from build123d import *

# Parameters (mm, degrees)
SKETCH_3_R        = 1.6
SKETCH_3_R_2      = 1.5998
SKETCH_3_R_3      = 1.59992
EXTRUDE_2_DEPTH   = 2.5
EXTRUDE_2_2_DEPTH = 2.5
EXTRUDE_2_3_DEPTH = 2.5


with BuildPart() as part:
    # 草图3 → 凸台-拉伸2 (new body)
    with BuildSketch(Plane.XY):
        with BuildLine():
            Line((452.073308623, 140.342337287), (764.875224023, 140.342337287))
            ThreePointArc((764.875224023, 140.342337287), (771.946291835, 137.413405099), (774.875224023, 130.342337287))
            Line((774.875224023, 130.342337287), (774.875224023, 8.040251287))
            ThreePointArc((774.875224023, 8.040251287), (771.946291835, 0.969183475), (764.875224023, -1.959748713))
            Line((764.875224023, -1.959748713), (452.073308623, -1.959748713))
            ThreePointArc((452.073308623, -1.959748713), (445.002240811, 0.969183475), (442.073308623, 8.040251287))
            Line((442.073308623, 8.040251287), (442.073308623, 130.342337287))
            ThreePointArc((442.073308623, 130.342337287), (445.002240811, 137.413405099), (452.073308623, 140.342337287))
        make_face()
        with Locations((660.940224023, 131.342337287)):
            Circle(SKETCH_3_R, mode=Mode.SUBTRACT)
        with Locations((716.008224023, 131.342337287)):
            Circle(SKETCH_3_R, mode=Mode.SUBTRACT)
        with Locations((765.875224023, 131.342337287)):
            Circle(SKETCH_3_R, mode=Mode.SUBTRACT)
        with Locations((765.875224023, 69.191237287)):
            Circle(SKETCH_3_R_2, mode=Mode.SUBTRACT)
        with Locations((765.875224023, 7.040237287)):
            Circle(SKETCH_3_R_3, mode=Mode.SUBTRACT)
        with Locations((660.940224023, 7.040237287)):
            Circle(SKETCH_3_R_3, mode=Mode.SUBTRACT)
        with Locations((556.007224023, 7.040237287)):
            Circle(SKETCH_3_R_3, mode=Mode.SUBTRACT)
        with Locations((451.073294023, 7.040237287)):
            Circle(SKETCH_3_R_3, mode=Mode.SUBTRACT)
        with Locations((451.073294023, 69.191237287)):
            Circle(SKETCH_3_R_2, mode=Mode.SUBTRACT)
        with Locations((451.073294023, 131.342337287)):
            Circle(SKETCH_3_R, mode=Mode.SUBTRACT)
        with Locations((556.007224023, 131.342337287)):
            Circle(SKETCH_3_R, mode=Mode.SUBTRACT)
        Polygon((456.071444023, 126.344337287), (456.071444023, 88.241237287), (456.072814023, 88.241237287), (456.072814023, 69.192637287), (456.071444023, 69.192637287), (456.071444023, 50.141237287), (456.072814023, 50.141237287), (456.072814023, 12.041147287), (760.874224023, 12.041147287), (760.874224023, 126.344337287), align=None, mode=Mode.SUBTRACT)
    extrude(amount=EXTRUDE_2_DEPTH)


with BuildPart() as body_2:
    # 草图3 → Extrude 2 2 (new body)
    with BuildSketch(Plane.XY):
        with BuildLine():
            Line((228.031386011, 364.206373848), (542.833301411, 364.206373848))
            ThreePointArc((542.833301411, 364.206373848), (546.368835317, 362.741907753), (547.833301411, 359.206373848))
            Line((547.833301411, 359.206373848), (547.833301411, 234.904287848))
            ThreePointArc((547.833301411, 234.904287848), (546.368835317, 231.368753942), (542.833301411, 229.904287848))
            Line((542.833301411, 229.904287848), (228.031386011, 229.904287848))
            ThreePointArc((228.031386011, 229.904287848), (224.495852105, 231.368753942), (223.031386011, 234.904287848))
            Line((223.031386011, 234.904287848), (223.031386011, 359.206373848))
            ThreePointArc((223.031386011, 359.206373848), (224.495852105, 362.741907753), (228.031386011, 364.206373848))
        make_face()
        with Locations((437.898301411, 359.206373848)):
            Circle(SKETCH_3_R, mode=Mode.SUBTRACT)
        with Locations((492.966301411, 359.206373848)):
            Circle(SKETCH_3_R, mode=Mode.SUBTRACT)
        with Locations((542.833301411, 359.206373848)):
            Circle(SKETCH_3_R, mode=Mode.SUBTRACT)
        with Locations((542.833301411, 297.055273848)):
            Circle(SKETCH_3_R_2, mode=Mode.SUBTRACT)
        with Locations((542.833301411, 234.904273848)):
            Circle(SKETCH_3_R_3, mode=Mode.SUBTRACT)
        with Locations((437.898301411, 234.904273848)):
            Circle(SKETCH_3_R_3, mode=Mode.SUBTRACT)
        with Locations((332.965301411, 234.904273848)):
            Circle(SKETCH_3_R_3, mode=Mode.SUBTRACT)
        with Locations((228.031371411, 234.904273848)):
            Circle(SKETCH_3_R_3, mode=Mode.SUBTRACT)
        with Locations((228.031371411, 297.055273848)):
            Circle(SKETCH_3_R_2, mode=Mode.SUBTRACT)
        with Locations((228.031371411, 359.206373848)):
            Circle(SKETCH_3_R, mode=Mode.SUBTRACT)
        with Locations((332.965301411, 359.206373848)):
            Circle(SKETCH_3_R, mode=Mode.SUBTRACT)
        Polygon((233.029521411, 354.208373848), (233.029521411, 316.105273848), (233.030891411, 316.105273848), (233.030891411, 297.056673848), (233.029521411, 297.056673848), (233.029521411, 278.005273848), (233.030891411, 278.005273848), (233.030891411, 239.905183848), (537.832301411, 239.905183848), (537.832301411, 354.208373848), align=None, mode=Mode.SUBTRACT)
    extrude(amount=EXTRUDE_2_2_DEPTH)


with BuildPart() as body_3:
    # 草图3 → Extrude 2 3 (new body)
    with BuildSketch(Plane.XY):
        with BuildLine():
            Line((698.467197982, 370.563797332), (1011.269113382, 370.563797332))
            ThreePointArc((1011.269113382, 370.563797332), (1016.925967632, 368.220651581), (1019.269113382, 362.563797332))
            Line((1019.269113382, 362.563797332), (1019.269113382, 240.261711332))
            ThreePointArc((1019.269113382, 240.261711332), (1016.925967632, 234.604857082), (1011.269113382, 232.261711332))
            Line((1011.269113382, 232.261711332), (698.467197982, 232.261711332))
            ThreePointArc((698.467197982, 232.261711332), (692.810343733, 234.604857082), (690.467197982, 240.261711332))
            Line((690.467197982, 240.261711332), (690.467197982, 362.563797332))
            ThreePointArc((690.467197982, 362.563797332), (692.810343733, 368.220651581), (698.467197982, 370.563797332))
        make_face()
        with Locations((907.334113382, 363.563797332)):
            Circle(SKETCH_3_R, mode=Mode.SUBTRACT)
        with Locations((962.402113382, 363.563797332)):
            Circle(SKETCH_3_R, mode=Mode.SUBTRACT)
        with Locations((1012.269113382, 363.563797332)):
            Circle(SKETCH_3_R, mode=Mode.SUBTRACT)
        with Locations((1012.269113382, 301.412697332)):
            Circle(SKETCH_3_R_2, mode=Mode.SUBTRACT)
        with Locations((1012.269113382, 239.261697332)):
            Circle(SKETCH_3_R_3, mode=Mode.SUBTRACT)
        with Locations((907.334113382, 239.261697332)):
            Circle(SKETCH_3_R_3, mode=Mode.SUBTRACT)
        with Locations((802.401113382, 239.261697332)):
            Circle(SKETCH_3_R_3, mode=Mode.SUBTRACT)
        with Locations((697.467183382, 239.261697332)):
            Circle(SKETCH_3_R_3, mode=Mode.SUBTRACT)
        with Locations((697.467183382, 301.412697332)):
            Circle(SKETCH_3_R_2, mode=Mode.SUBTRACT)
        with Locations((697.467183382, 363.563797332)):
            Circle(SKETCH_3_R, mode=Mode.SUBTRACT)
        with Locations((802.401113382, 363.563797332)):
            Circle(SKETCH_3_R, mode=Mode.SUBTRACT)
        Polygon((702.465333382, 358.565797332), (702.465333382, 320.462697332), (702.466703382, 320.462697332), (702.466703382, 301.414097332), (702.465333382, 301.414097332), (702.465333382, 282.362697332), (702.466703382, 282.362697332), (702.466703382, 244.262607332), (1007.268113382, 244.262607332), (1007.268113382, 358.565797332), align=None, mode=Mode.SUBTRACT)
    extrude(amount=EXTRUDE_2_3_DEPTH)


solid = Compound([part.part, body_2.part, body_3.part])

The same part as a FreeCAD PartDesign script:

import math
import FreeCAD as App
import Part
import Sketcher
Q = App.Units.Quantity

doc = App.newDocument("Part")
body = doc.addObject("PartDesign::Body", "Body")

sketch1 = body.newObject("Sketcher::SketchObject", "Sketch")
sketch1.AttachmentSupport = (doc.getObject("XY_Plane"), [""])
sketch1.MapMode = "FlatFace"
sketch1.addGeometry(Part.LineSegment(App.Vector(764.875224, 140.342337, 0), App.Vector(452.073309, 140.342337, 0)), False)
sketch1.addGeometry(Part.ArcOfCircle(Part.Circle(App.Vector(452.073309, 130.342337, 0), App.Vector(0, 0, 1), 10), math.radians(90), math.radians(180)), False)
sketch1.addGeometry(Part.LineSegment(App.Vector(442.073309, 130.342337, 0), App.Vector(442.073309, 8.040251, 0)), False)
sketch1.addGeometry(Part.ArcOfCircle(Part.Circle(App.Vector(452.073309, 8.040251, 0), App.Vector(0, 0, 1), 10), math.radians(180), math.radians(270)), False)
sketch1.addGeometry(Part.LineSegment(App.Vector(452.073309, -1.959749, 0), App.Vector(764.875224, -1.959749, 0)), False)
sketch1.addGeometry(Part.ArcOfCircle(Part.Circle(App.Vector(764.875224, 8.040251, 0), App.Vector(0, 0, 1), 10), math.radians(-90), math.radians(0)), False)
sketch1.addGeometry(Part.LineSegment(App.Vector(774.875224, 8.040251, 0), App.Vector(774.875224, 130.342337, 0)), False)
sketch1.addGeometry(Part.ArcOfCircle(Part.Circle(App.Vector(764.875224, 130.342337, 0), App.Vector(0, 0, 1), 10), math.radians(0), math.radians(90)), False)
sketch1.addGeometry(Part.Circle(App.Vector(765.875224, 7.040237, 0), App.Vector(0, 0, 1), 1.59992), False)
sketch1.addGeometry(Part.Circle(App.Vector(660.940224, 7.040237, 0), App.Vector(0, 0, 1), 1.59992), False)
sketch1.addGeometry(Part.Circle(App.Vector(765.875224, 69.191237, 0), App.Vector(0, 0, 1), 1.5998), False)
sketch1.addGeometry(Part.Circle(App.Vector(556.007224, 7.040237, 0), App.Vector(0, 0, 1), 1.59992), False)
sketch1.addGeometry(Part.Circle(App.Vector(451.073294, 7.040237, 0), App.Vector(0, 0, 1), 1.59992), False)
sketch1.addGeometry(Part.Circle(App.Vector(451.073294, 69.191237, 0), App.Vector(0, 0, 1), 1.5998), False)
sketch1.addGeometry(Part.Circle(App.Vector(765.875224, 131.342337, 0), App.Vector(0, 0, 1), 1.6), False)
sketch1.addGeometry(Part.Circle(App.Vector(716.008224, 131.342337, 0), App.Vector(0, 0, 1), 1.6), False)
sketch1.addGeometry(Part.Circle(App.Vector(660.940224, 131.342337, 0), App.Vector(0, 0, 1), 1.6), False)
sketch1.addGeometry(Part.LineSegment(App.Vector(456.071444, 126.344337, 0), App.Vector(760.874224, 126.344337, 0)), False)
sketch1.addGeometry(Part.LineSegment(App.Vector(760.874224, 126.344337, 0), App.Vector(760.874224, 12.041147, 0)), False)
sketch1.addGeometry(Part.LineSegment(App.Vector(760.874224, 12.041147, 0), App.Vector(456.072814, 12.041147, 0)), False)
sketch1.addGeometry(Part.LineSegment(App.Vector(456.072814, 12.041147, 0), App.Vector(456.072814, 50.141237, 0)), False)
sketch1.addGeometry(Part.LineSegment(App.Vector(456.072814, 50.141237, 0), App.Vector(456.071444, 50.141237, 0)), False)
sketch1.addGeometry(Part.LineSegment(App.Vector(456.071444, 50.141237, 0), App.Vector(456.071444, 69.192637, 0)), False)
sketch1.addGeometry(Part.LineSegment(App.Vector(456.071444, 69.192637, 0), App.Vector(456.072814, 69.192637, 0)), False)
sketch1.addGeometry(Part.LineSegment(App.Vector(456.072814, 69.192637, 0), App.Vector(456.072814, 88.241237, 0)), False)
sketch1.addGeometry(Part.LineSegment(App.Vector(456.072814, 88.241237, 0), App.Vector(456.071444, 88.241237, 0)), False)
sketch1.addGeometry(Part.LineSegment(App.Vector(456.071444, 88.241237, 0), App.Vector(456.071444, 126.344337, 0)), False)
sketch1.addGeometry(Part.Circle(App.Vector(556.007224, 131.342337, 0), App.Vector(0, 0, 1), 1.6), False)
sketch1.addGeometry(Part.Circle(App.Vector(451.073294, 131.342337, 0), App.Vector(0, 0, 1), 1.6), False)
sketch1.addConstraint(Sketcher.Constraint("Tangent", 0, 2, 1, 1))
sketch1.addConstraint(Sketcher.Constraint("Tangent", 1, 2, 2, 1))
sketch1.addConstraint(Sketcher.Constraint("Tangent", 2, 2, 3, 1))
sketch1.addConstraint(Sketcher.Constraint("Tangent", 3, 2, 4, 1))
sketch1.addConstraint(Sketcher.Constraint("Tangent", 4, 2, 5, 1))
sketch1.addConstraint(Sketcher.Constraint("Tangent", 5, 2, 6, 1))
sketch1.addConstraint(Sketcher.Constraint("Tangent", 6, 2, 7, 1))
sketch1.addConstraint(Sketcher.Constraint("Tangent", 7, 2, 0, 1))
sketch1.addConstraint(Sketcher.Constraint("Coincident", 17, 2, 18, 1))
sketch1.addConstraint(Sketcher.Constraint("Coincident", 18, 2, 19, 1))
sketch1.addConstraint(Sketcher.Constraint("Coincident", 19, 2, 20, 1))
sketch1.addConstraint(Sketcher.Constraint("Coincident", 20, 2, 21, 1))
sketch1.addConstraint(Sketcher.Constraint("Coincident", 21, 2, 22, 1))
sketch1.addConstraint(Sketcher.Constraint("Coincident", 22, 2, 23, 1))
sketch1.addConstraint(Sketcher.Constraint("Coincident", 23, 2, 24, 1))
sketch1.addConstraint(Sketcher.Constraint("Coincident", 24, 2, 25, 1))
sketch1.addConstraint(Sketcher.Constraint("Coincident", 25, 2, 26, 1))
sketch1.addConstraint(Sketcher.Constraint("Coincident", 26, 2, 17, 1))
sketch1.addConstraint(Sketcher.Constraint("Horizontal", 0))
sketch1.addConstraint(Sketcher.Constraint("Vertical", 2))
sketch1.addConstraint(Sketcher.Constraint("Horizontal", 4))
sketch1.addConstraint(Sketcher.Constraint("Vertical", 6))
sketch1.addConstraint(Sketcher.Constraint("Horizontal", 17))
sketch1.addConstraint(Sketcher.Constraint("Vertical", 18))
sketch1.addConstraint(Sketcher.Constraint("Horizontal", 19))
sketch1.addConstraint(Sketcher.Constraint("Vertical", 20))
sketch1.addConstraint(Sketcher.Constraint("Horizontal", 21))
sketch1.addConstraint(Sketcher.Constraint("Vertical", 22))
sketch1.addConstraint(Sketcher.Constraint("Horizontal", 23))
sketch1.addConstraint(Sketcher.Constraint("Vertical", 24))
sketch1.addConstraint(Sketcher.Constraint("Horizontal", 25))
sketch1.addConstraint(Sketcher.Constraint("Vertical", 26))
sketch1.addConstraint(Sketcher.Constraint("Equal", 1, 3))
sketch1.addConstraint(Sketcher.Constraint("Equal", 3, 5))
sketch1.addConstraint(Sketcher.Constraint("Equal", 5, 7))
sketch1.addConstraint(Sketcher.Constraint("Equal", 8, 9))
sketch1.addConstraint(Sketcher.Constraint("Equal", 9, 11))
sketch1.addConstraint(Sketcher.Constraint("Equal", 11, 12))
sketch1.addConstraint(Sketcher.Constraint("Equal", 10, 13))
sketch1.addConstraint(Sketcher.Constraint("Equal", 14, 15))
sketch1.addConstraint(Sketcher.Constraint("Equal", 15, 16))
sketch1.addConstraint(Sketcher.Constraint("Equal", 16, 27))
sketch1.addConstraint(Sketcher.Constraint("Equal", 27, 28))
sketch1.addConstraint(Sketcher.Constraint("Horizontal", 8, 3, 9, 3))
sketch1.addConstraint(Sketcher.Constraint("Horizontal", 9, 3, 11, 3))
sketch1.addConstraint(Sketcher.Constraint("Horizontal", 11, 3, 12, 3))
sketch1.addConstraint(Sketcher.Constraint("Horizontal", 10, 3, 13, 3))
sketch1.addConstraint(Sketcher.Constraint("Horizontal", 14, 3, 15, 3))
sketch1.addConstraint(Sketcher.Constraint("Horizontal", 15, 3, 16, 3))
sketch1.addConstraint(Sketcher.Constraint("Horizontal", 16, 3, 27, 3))
sketch1.addConstraint(Sketcher.Constraint("Horizontal", 27, 3, 28, 3))
sketch1.addConstraint(Sketcher.Constraint("Vertical", 8, 3, 10, 3))
sketch1.addConstraint(Sketcher.Constraint("Vertical", 12, 3, 13, 3))
sketch1.addConstraint(Sketcher.Constraint("Vertical", 10, 3, 14, 3))
sketch1.addConstraint(Sketcher.Constraint("Vertical", 9, 3, 16, 3))
sketch1.addConstraint(Sketcher.Constraint("Vertical", 11, 3, 27, 3))
sketch1.addConstraint(Sketcher.Constraint("Vertical", 13, 3, 28, 3))
sketch1.addConstraint(Sketcher.Constraint("Vertical", 20, 2, 23, 2))
sketch1.addConstraint(Sketcher.Constraint("Vertical", 22, 2, 25, 2))
sketch1.addConstraint(Sketcher.Constraint("Radius", 1, Q("10 mm")))
sketch1.addConstraint(Sketcher.Constraint("Diameter", 14, Q("3.2 mm")))
sketch1.addConstraint(Sketcher.Constraint("DistanceX", 5, 3, 8, 3, Q("1 mm")))
sketch1.addConstraint(Sketcher.Constraint("DistanceY", 7, 3, 14, 3, Q("1 mm")))
sketch1.addConstraint(Sketcher.Constraint("Diameter", 10, Q("3.1996 mm")))
sketch1.addConstraint(Sketcher.Constraint("DistanceY", 20, 2, 24, 2, Q("38.1 mm")))
sketch1.addConstraint(Sketcher.Constraint("Diameter", 8, Q("3.19984 mm")))
sketch1.addConstraint(Sketcher.Constraint("DistanceY", 20, 2, 13, 3, Q("19.05 mm")))
sketch1.addConstraint(Sketcher.Constraint("DistanceY", 22, 1, 22, 2, Q("19.0514 mm")))
sketch1.addConstraint(Sketcher.Constraint("DistanceY", 26, 1, 26, 2, Q("38.1031 mm")))
sketch1.addConstraint(Sketcher.Constraint("DistanceX", 9, 3, 5, 3, Q("103.935 mm")))
sketch1.addConstraint(Sketcher.Constraint("DistanceY", 8, 3, 10, 3, Q("62.151 mm")))
sketch1.addConstraint(Sketcher.Constraint("DistanceX", 11, 3, 9, 3, Q("104.933 mm")))
sketch1.addConstraint(Sketcher.Constraint("DistanceX", 15, 3, 7, 3, Q("48.867 mm")))
sketch1.addConstraint(Sketcher.Constraint("DistanceX", 17, 2, 7, 3, Q("4.001 mm")))
sketch1.addConstraint(Sketcher.Constraint("DistanceY", 17, 2, 7, 3, Q("3.998 mm")))
sketch1.addConstraint(Sketcher.Constraint("DistanceX", 17, 1, 17, 2, Q("304.80278 mm")))
sketch1.addConstraint(Sketcher.Constraint("DistanceX", 19, 2, 19, 1, Q("304.80141 mm")))
sketch1.addConstraint(Sketcher.Constraint("DistanceY", 18, 2, 18, 1, Q("114.30319 mm")))
sketch1.addConstraint(Sketcher.Constraint("DistanceX", 0, 2, 0, 1, Q("312.801915 mm")))
sketch1.addConstraint(Sketcher.Constraint("DistanceY", 2, 2, 2, 1, Q("122.302086 mm")))
sketch1.addConstraint(Sketcher.Constraint("DistanceX", -1, 1, 1, 3, Q("452.073309 mm")))
sketch1.addConstraint(Sketcher.Constraint("DistanceY", -1, 1, 3, 3, Q("8.040251 mm")))
sketch1.addConstraint(Sketcher.Constraint("DistanceX", 12, 3, 11, 3, Q("104.93393 mm")))
pad1 = body.newObject("PartDesign::Pad", "Pad")
pad1.Profile = sketch1
pad1.Length = 2.5
body2 = doc.addObject("PartDesign::Body", "Body001")

sketch2 = body2.newObject("Sketcher::SketchObject", "Sketch001")
sketch2.AttachmentSupport = (doc.getObject("XY_Plane001"), [""])
sketch2.MapMode = "FlatFace"
sketch2.addGeometry(Part.LineSegment(App.Vector(542.833301, 364.206374, 0), App.Vector(228.031386, 364.206374, 0)), False)
sketch2.addGeometry(Part.ArcOfCircle(Part.Circle(App.Vector(228.031386, 359.206374, 0), App.Vector(0, 0, 1), 5), math.radians(90), math.radians(180)), False)
sketch2.addGeometry(Part.LineSegment(App.Vector(223.031386, 359.206374, 0), App.Vector(223.031386, 234.904288, 0)), False)
sketch2.addGeometry(Part.ArcOfCircle(Part.Circle(App.Vector(228.031386, 234.904288, 0), App.Vector(0, 0, 1), 5), math.radians(180), math.radians(270)), False)
sketch2.addGeometry(Part.LineSegment(App.Vector(228.031386, 229.904288, 0), App.Vector(542.833301, 229.904288, 0)), False)
sketch2.addGeometry(Part.ArcOfCircle(Part.Circle(App.Vector(542.833301, 234.904288, 0), App.Vector(0, 0, 1), 5), math.radians(-90), math.radians(0)), False)
sketch2.addGeometry(Part.LineSegment(App.Vector(547.833301, 234.904288, 0), App.Vector(547.833301, 359.206374, 0)), False)
sketch2.addGeometry(Part.ArcOfCircle(Part.Circle(App.Vector(542.833301, 359.206374, 0), App.Vector(0, 0, 1), 5), math.radians(0), math.radians(90)), False)
sketch2.addGeometry(Part.Circle(App.Vector(542.833301, 234.904274, 0), App.Vector(0, 0, 1), 1.59992), False)
sketch2.addGeometry(Part.Circle(App.Vector(437.898301, 234.904274, 0), App.Vector(0, 0, 1), 1.59992), False)
sketch2.addGeometry(Part.Circle(App.Vector(542.833301, 297.055274, 0), App.Vector(0, 0, 1), 1.5998), False)
sketch2.addGeometry(Part.Circle(App.Vector(332.965301, 234.904274, 0), App.Vector(0, 0, 1), 1.59992), False)
sketch2.addGeometry(Part.Circle(App.Vector(228.031371, 234.904274, 0), App.Vector(0, 0, 1), 1.59992), False)
sketch2.addGeometry(Part.Circle(App.Vector(228.031371, 297.055274, 0), App.Vector(0, 0, 1), 1.5998), False)
sketch2.addGeometry(Part.Circle(App.Vector(542.833301, 359.206374, 0), App.Vector(0, 0, 1), 1.6), False)
sketch2.addGeometry(Part.Circle(App.Vector(492.966301, 359.206374, 0), App.Vector(0, 0, 1), 1.6), False)
sketch2.addGeometry(Part.Circle(App.Vector(437.898301, 359.206374, 0), App.Vector(0, 0, 1), 1.6), False)
sketch2.addGeometry(Part.LineSegment(App.Vector(233.029521, 354.208374, 0), App.Vector(537.832301, 354.208374, 0)), False)
sketch2.addGeometry(Part.LineSegment(App.Vector(537.832301, 354.208374, 0), App.Vector(537.832301, 239.905184, 0)), False)
sketch2.addGeometry(Part.LineSegment(App.Vector(537.832301, 239.905184, 0), App.Vector(233.030891, 239.905184, 0)), False)
sketch2.addGeometry(Part.LineSegment(App.Vector(233.030891, 239.905184, 0), App.Vector(233.030891, 278.005274, 0)), False)
sketch2.addGeometry(Part.LineSegment(App.Vector(233.030891, 278.005274, 0), App.Vector(233.029521, 278.005274, 0)), False)
sketch2.addGeometry(Part.LineSegment(App.Vector(233.029521, 278.005274, 0), App.Vector(233.029521, 297.056674, 0)), False)
sketch2.addGeometry(Part.LineSegment(App.Vector(233.029521, 297.056674, 0), App.Vector(233.030891, 297.056674, 0)), False)
sketch2.addGeometry(Part.LineSegment(App.Vector(233.030891, 297.056674, 0), App.Vector(233.030891, 316.105274, 0)), False)
sketch2.addGeometry(Part.LineSegment(App.Vector(233.030891, 316.105274, 0), App.Vector(233.029521, 316.105274, 0)), False)
sketch2.addGeometry(Part.LineSegment(App.Vector(233.029521, 316.105274, 0), App.Vector(233.029521, 354.208374, 0)), False)
sketch2.addGeometry(Part.Circle(App.Vector(332.965301, 359.206374, 0), App.Vector(0, 0, 1), 1.6), False)
sketch2.addGeometry(Part.Circle(App.Vector(228.031371, 359.206374, 0), App.Vector(0, 0, 1), 1.6), False)
sketch2.addConstraint(Sketcher.Constraint("Tangent", 0, 2, 1, 1))
sketch2.addConstraint(Sketcher.Constraint("Tangent", 1, 2, 2, 1))
sketch2.addConstraint(Sketcher.Constraint("Tangent", 2, 2, 3, 1))
sketch2.addConstraint(Sketcher.Constraint("Tangent", 3, 2, 4, 1))
sketch2.addConstraint(Sketcher.Constraint("Tangent", 4, 2, 5, 1))
sketch2.addConstraint(Sketcher.Constraint("Tangent", 5, 2, 6, 1))
sketch2.addConstraint(Sketcher.Constraint("Tangent", 6, 2, 7, 1))
sketch2.addConstraint(Sketcher.Constraint("Tangent", 7, 2, 0, 1))
sketch2.addConstraint(Sketcher.Constraint("Coincident", 17, 2, 18, 1))
sketch2.addConstraint(Sketcher.Constraint("Coincident", 18, 2, 19, 1))
sketch2.addConstraint(Sketcher.Constraint("Coincident", 19, 2, 20, 1))
sketch2.addConstraint(Sketcher.Constraint("Coincident", 20, 2, 21, 1))
sketch2.addConstraint(Sketcher.Constraint("Coincident", 21, 2, 22, 1))
sketch2.addConstraint(Sketcher.Constraint("Coincident", 22, 2, 23, 1))
sketch2.addConstraint(Sketcher.Constraint("Coincident", 23, 2, 24, 1))
sketch2.addConstraint(Sketcher.Constraint("Coincident", 24, 2, 25, 1))
sketch2.addConstraint(Sketcher.Constraint("Coincident", 25, 2, 26, 1))
sketch2.addConstraint(Sketcher.Constraint("Coincident", 26, 2, 17, 1))
sketch2.addConstraint(Sketcher.Constraint("Horizontal", 0))
sketch2.addConstraint(Sketcher.Constraint("Vertical", 2))
sketch2.addConstraint(Sketcher.Constraint("Horizontal", 4))
sketch2.addConstraint(Sketcher.Constraint("Vertical", 6))
sketch2.addConstraint(Sketcher.Constraint("Horizontal", 17))
sketch2.addConstraint(Sketcher.Constraint("Vertical", 18))
sketch2.addConstraint(Sketcher.Constraint("Horizontal", 19))
sketch2.addConstraint(Sketcher.Constraint("Vertical", 20))
sketch2.addConstraint(Sketcher.Constraint("Horizontal", 21))
sketch2.addConstraint(Sketcher.Constraint("Vertical", 22))
sketch2.addConstraint(Sketcher.Constraint("Horizontal", 23))
sketch2.addConstraint(Sketcher.Constraint("Vertical", 24))
sketch2.addConstraint(Sketcher.Constraint("Horizontal", 25))
sketch2.addConstraint(Sketcher.Constraint("Vertical", 26))
sketch2.addConstraint(Sketcher.Constraint("Coincident", 14, 3, 7, 3))
sketch2.addConstraint(Sketcher.Constraint("Equal", 1, 3))
sketch2.addConstraint(Sketcher.Constraint("Equal", 3, 5))
sketch2.addConstraint(Sketcher.Constraint("Equal", 5, 7))
sketch2.addConstraint(Sketcher.Constraint("Equal", 8, 9))
sketch2.addConstraint(Sketcher.Constraint("Equal", 9, 11))
sketch2.addConstraint(Sketcher.Constraint("Equal", 11, 12))
sketch2.addConstraint(Sketcher.Constraint("Equal", 10, 13))
sketch2.addConstraint(Sketcher.Constraint("Equal", 14, 15))
sketch2.addConstraint(Sketcher.Constraint("Equal", 15, 16))
sketch2.addConstraint(Sketcher.Constraint("Equal", 16, 27))
sketch2.addConstraint(Sketcher.Constraint("Equal", 27, 28))
sketch2.addConstraint(Sketcher.Constraint("Horizontal", 8, 3, 9, 3))
sketch2.addConstraint(Sketcher.Constraint("Horizontal", 9, 3, 11, 3))
sketch2.addConstraint(Sketcher.Constraint("Horizontal", 11, 3, 12, 3))
sketch2.addConstraint(Sketcher.Constraint("Horizontal", 10, 3, 13, 3))
sketch2.addConstraint(Sketcher.Constraint("Horizontal", 14, 3, 15, 3))
sketch2.addConstraint(Sketcher.Constraint("Horizontal", 15, 3, 16, 3))
sketch2.addConstraint(Sketcher.Constraint("Horizontal", 16, 3, 27, 3))
sketch2.addConstraint(Sketcher.Constraint("Horizontal", 27, 3, 28, 3))
sketch2.addConstraint(Sketcher.Constraint("Vertical", 7, 3, 8, 3))
sketch2.addConstraint(Sketcher.Constraint("Vertical", 8, 3, 10, 3))
sketch2.addConstraint(Sketcher.Constraint("Vertical", 12, 3, 13, 3))
sketch2.addConstraint(Sketcher.Constraint("Vertical", 9, 3, 16, 3))
sketch2.addConstraint(Sketcher.Constraint("Vertical", 11, 3, 27, 3))
sketch2.addConstraint(Sketcher.Constraint("Vertical", 13, 3, 28, 3))
sketch2.addConstraint(Sketcher.Constraint("Vertical", 20, 2, 23, 2))
sketch2.addConstraint(Sketcher.Constraint("Vertical", 22, 2, 25, 2))
sketch2.addConstraint(Sketcher.Constraint("Radius", 1, Q("5 mm")))
sketch2.addConstraint(Sketcher.Constraint("Diameter", 14, Q("3.2 mm")))
sketch2.addConstraint(Sketcher.Constraint("Diameter", 10, Q("3.1996 mm")))
sketch2.addConstraint(Sketcher.Constraint("DistanceY", 20, 2, 24, 2, Q("38.1 mm")))
sketch2.addConstraint(Sketcher.Constraint("Diameter", 8, Q("3.19984 mm")))
sketch2.addConstraint(Sketcher.Constraint("DistanceY", 20, 2, 13, 3, Q("19.05 mm")))
sketch2.addConstraint(Sketcher.Constraint("DistanceY", 22, 1, 22, 2, Q("19.0514 mm")))
sketch2.addConstraint(Sketcher.Constraint("DistanceY", 26, 1, 26, 2, Q("38.1031 mm")))
sketch2.addConstraint(Sketcher.Constraint("DistanceX", 9, 3, 8, 3, Q("104.935 mm")))
sketch2.addConstraint(Sketcher.Constraint("DistanceY", 8, 3, 10, 3, Q("62.151 mm")))
sketch2.addConstraint(Sketcher.Constraint("DistanceX", 11, 3, 9, 3, Q("104.933 mm")))
sketch2.addConstraint(Sketcher.Constraint("DistanceX", 15, 3, 7, 3, Q("49.867 mm")))
sketch2.addConstraint(Sketcher.Constraint("DistanceX", 17, 2, 7, 3, Q("5.001 mm")))
sketch2.addConstraint(Sketcher.Constraint("DistanceY", 17, 2, 7, 3, Q("4.998 mm")))
sketch2.addConstraint(Sketcher.Constraint("DistanceX", 17, 1, 17, 2, Q("304.80278 mm")))
sketch2.addConstraint(Sketcher.Constraint("DistanceX", 19, 2, 19, 1, Q("304.80141 mm")))
sketch2.addConstraint(Sketcher.Constraint("DistanceY", 18, 2, 18, 1, Q("114.30319 mm")))
sketch2.addConstraint(Sketcher.Constraint("DistanceX", -1, 1, 5, 3, Q("542.833301 mm")))
sketch2.addConstraint(Sketcher.Constraint("DistanceX", 0, 2, 0, 1, Q("314.801915 mm")))
sketch2.addConstraint(Sketcher.Constraint("DistanceY", 2, 2, 2, 1, Q("124.302086 mm")))
sketch2.addConstraint(Sketcher.Constraint("DistanceX", -1, 1, 12, 3, Q("228.031371 mm")))
sketch2.addConstraint(Sketcher.Constraint("DistanceY", -1, 1, 1, 3, Q("359.206374 mm")))
pad2 = body2.newObject("PartDesign::Pad", "Pad001")
pad2.Profile = sketch2
pad2.Length = 2.5
body3 = doc.addObject("PartDesign::Body", "Body002")

sketch3 = body3.newObject("Sketcher::SketchObject", "Sketch002")
sketch3.AttachmentSupport = (doc.getObject("XY_Plane002"), [""])
sketch3.MapMode = "FlatFace"
sketch3.addGeometry(Part.LineSegment(App.Vector(1011.269113, 370.563797, 0), App.Vector(698.467198, 370.563797, 0)), False)
sketch3.addGeometry(Part.ArcOfCircle(Part.Circle(App.Vector(698.467198, 362.563797, 0), App.Vector(0, 0, 1), 8), math.radians(90), math.radians(180)), False)
sketch3.addGeometry(Part.LineSegment(App.Vector(690.467198, 362.563797, 0), App.Vector(690.467198, 240.261711, 0)), False)
sketch3.addGeometry(Part.ArcOfCircle(Part.Circle(App.Vector(698.467198, 240.261711, 0), App.Vector(0, 0, 1), 8), math.radians(180), math.radians(270)), False)
sketch3.addGeometry(Part.LineSegment(App.Vector(698.467198, 232.261711, 0), App.Vector(1011.269113, 232.261711, 0)), False)
sketch3.addGeometry(Part.ArcOfCircle(Part.Circle(App.Vector(1011.269113, 240.261711, 0), App.Vector(0, 0, 1), 8), math.radians(-90), math.radians(0)), False)
sketch3.addGeometry(Part.LineSegment(App.Vector(1019.269113, 240.261711, 0), App.Vector(1019.269113, 362.563797, 0)), False)
sketch3.addGeometry(Part.ArcOfCircle(Part.Circle(App.Vector(1011.269113, 362.563797, 0), App.Vector(0, 0, 1), 8), math.radians(0), math.radians(90)), False)
sketch3.addGeometry(Part.Circle(App.Vector(1012.269113, 239.261697, 0), App.Vector(0, 0, 1), 1.59992), False)
sketch3.addGeometry(Part.Circle(App.Vector(907.334113, 239.261697, 0), App.Vector(0, 0, 1), 1.59992), False)
sketch3.addGeometry(Part.Circle(App.Vector(1012.269113, 301.412697, 0), App.Vector(0, 0, 1), 1.5998), False)
sketch3.addGeometry(Part.Circle(App.Vector(802.401113, 239.261697, 0), App.Vector(0, 0, 1), 1.59992), False)
sketch3.addGeometry(Part.Circle(App.Vector(697.467183, 239.261697, 0), App.Vector(0, 0, 1), 1.59992), False)
sketch3.addGeometry(Part.Circle(App.Vector(697.467183, 301.412697, 0), App.Vector(0, 0, 1), 1.5998), False)
sketch3.addGeometry(Part.Circle(App.Vector(1012.269113, 363.563797, 0), App.Vector(0, 0, 1), 1.6), False)
sketch3.addGeometry(Part.Circle(App.Vector(962.402113, 363.563797, 0), App.Vector(0, 0, 1), 1.6), False)
sketch3.addGeometry(Part.Circle(App.Vector(907.334113, 363.563797, 0), App.Vector(0, 0, 1), 1.6), False)
sketch3.addGeometry(Part.LineSegment(App.Vector(702.465333, 358.565797, 0), App.Vector(1007.268113, 358.565797, 0)), False)
sketch3.addGeometry(Part.LineSegment(App.Vector(1007.268113, 358.565797, 0), App.Vector(1007.268113, 244.262607, 0)), False)
sketch3.addGeometry(Part.LineSegment(App.Vector(1007.268113, 244.262607, 0), App.Vector(702.466703, 244.262607, 0)), False)
sketch3.addGeometry(Part.LineSegment(App.Vector(702.466703, 244.262607, 0), App.Vector(702.466703, 282.362697, 0)), False)
sketch3.addGeometry(Part.LineSegment(App.Vector(702.466703, 282.362697, 0), App.Vector(702.465333, 282.362697, 0)), False)
sketch3.addGeometry(Part.LineSegment(App.Vector(702.465333, 282.362697, 0), App.Vector(702.465333, 301.414097, 0)), False)
sketch3.addGeometry(Part.LineSegment(App.Vector(702.465333, 301.414097, 0), App.Vector(702.466703, 301.414097, 0)), False)
sketch3.addGeometry(Part.LineSegment(App.Vector(702.466703, 301.414097, 0), App.Vector(702.466703, 320.462697, 0)), False)
sketch3.addGeometry(Part.LineSegment(App.Vector(702.466703, 320.462697, 0), App.Vector(702.465333, 320.462697, 0)), False)
sketch3.addGeometry(Part.LineSegment(App.Vector(702.465333, 320.462697, 0), App.Vector(702.465333, 358.565797, 0)), False)
sketch3.addGeometry(Part.Circle(App.Vector(802.401113, 363.563797, 0), App.Vector(0, 0, 1), 1.6), False)
sketch3.addGeometry(Part.Circle(App.Vector(697.467183, 363.563797, 0), App.Vector(0, 0, 1), 1.6), False)
sketch3.addConstraint(Sketcher.Constraint("Tangent", 0, 2, 1, 1))
sketch3.addConstraint(Sketcher.Constraint("Tangent", 1, 2, 2, 1))
sketch3.addConstraint(Sketcher.Constraint("Tangent", 2, 2, 3, 1))
sketch3.addConstraint(Sketcher.Constraint("Tangent", 3, 2, 4, 1))
sketch3.addConstraint(Sketcher.Constraint("Tangent", 4, 2, 5, 1))
sketch3.addConstraint(Sketcher.Constraint("Tangent", 5, 2, 6, 1))
sketch3.addConstraint(Sketcher.Constraint("Tangent", 6, 2, 7, 1))
sketch3.addConstraint(Sketcher.Constraint("Tangent", 7, 2, 0, 1))
sketch3.addConstraint(Sketcher.Constraint("Coincident", 17, 2, 18, 1))
sketch3.addConstraint(Sketcher.Constraint("Coincident", 18, 2, 19, 1))
sketch3.addConstraint(Sketcher.Constraint("Coincident", 19, 2, 20, 1))
sketch3.addConstraint(Sketcher.Constraint("Coincident", 20, 2, 21, 1))
sketch3.addConstraint(Sketcher.Constraint("Coincident", 21, 2, 22, 1))
sketch3.addConstraint(Sketcher.Constraint("Coincident", 22, 2, 23, 1))
sketch3.addConstraint(Sketcher.Constraint("Coincident", 23, 2, 24, 1))
sketch3.addConstraint(Sketcher.Constraint("Coincident", 24, 2, 25, 1))
sketch3.addConstraint(Sketcher.Constraint("Coincident", 25, 2, 26, 1))
sketch3.addConstraint(Sketcher.Constraint("Coincident", 26, 2, 17, 1))
sketch3.addConstraint(Sketcher.Constraint("Horizontal", 0))
sketch3.addConstraint(Sketcher.Constraint("Vertical", 2))
sketch3.addConstraint(Sketcher.Constraint("Horizontal", 4))
sketch3.addConstraint(Sketcher.Constraint("Vertical", 6))
sketch3.addConstraint(Sketcher.Constraint("Horizontal", 17))
sketch3.addConstraint(Sketcher.Constraint("Vertical", 18))
sketch3.addConstraint(Sketcher.Constraint("Horizontal", 19))
sketch3.addConstraint(Sketcher.Constraint("Vertical", 20))
sketch3.addConstraint(Sketcher.Constraint("Horizontal", 21))
sketch3.addConstraint(Sketcher.Constraint("Vertical", 22))
sketch3.addConstraint(Sketcher.Constraint("Horizontal", 23))
sketch3.addConstraint(Sketcher.Constraint("Vertical", 24))
sketch3.addConstraint(Sketcher.Constraint("Horizontal", 25))
sketch3.addConstraint(Sketcher.Constraint("Vertical", 26))
sketch3.addConstraint(Sketcher.Constraint("Equal", 1, 3))
sketch3.addConstraint(Sketcher.Constraint("Equal", 3, 5))
sketch3.addConstraint(Sketcher.Constraint("Equal", 5, 7))
sketch3.addConstraint(Sketcher.Constraint("Equal", 8, 9))
sketch3.addConstraint(Sketcher.Constraint("Equal", 9, 11))
sketch3.addConstraint(Sketcher.Constraint("Equal", 11, 12))
sketch3.addConstraint(Sketcher.Constraint("Equal", 10, 13))
sketch3.addConstraint(Sketcher.Constraint("Equal", 14, 15))
sketch3.addConstraint(Sketcher.Constraint("Equal", 15, 16))
sketch3.addConstraint(Sketcher.Constraint("Equal", 16, 27))
sketch3.addConstraint(Sketcher.Constraint("Equal", 27, 28))
sketch3.addConstraint(Sketcher.Constraint("Horizontal", 8, 3, 9, 3))
sketch3.addConstraint(Sketcher.Constraint("Horizontal", 9, 3, 11, 3))
sketch3.addConstraint(Sketcher.Constraint("Horizontal", 11, 3, 12, 3))
sketch3.addConstraint(Sketcher.Constraint("Horizontal", 10, 3, 13, 3))
sketch3.addConstraint(Sketcher.Constraint("Horizontal", 14, 3, 15, 3))
sketch3.addConstraint(Sketcher.Constraint("Horizontal", 15, 3, 16, 3))
sketch3.addConstraint(Sketcher.Constraint("Horizontal", 16, 3, 27, 3))
sketch3.addConstraint(Sketcher.Constraint("Horizontal", 27, 3, 28, 3))
sketch3.addConstraint(Sketcher.Constraint("Vertical", 8, 3, 10, 3))
sketch3.addConstraint(Sketcher.Constraint("Vertical", 12, 3, 13, 3))
sketch3.addConstraint(Sketcher.Constraint("Vertical", 10, 3, 14, 3))
sketch3.addConstraint(Sketcher.Constraint("Vertical", 9, 3, 16, 3))
sketch3.addConstraint(Sketcher.Constraint("Vertical", 11, 3, 27, 3))
sketch3.addConstraint(Sketcher.Constraint("Vertical", 13, 3, 28, 3))
sketch3.addConstraint(Sketcher.Constraint("Vertical", 20, 2, 23, 2))
sketch3.addConstraint(Sketcher.Constraint("Vertical", 22, 2, 25, 2))
sketch3.addConstraint(Sketcher.Constraint("Radius", 1, Q("8 mm")))
sketch3.addConstraint(Sketcher.Constraint("Diameter", 14, Q("3.2 mm")))
sketch3.addConstraint(Sketcher.Constraint("DistanceX", 5, 3, 8, 3, Q("1 mm")))
sketch3.addConstraint(Sketcher.Constraint("DistanceY", 7, 3, 14, 3, Q("1 mm")))
sketch3.addConstraint(Sketcher.Constraint("Diameter", 10, Q("3.1996 mm")))
sketch3.addConstraint(Sketcher.Constraint("DistanceY", 20, 2, 24, 2, Q("38.1 mm")))
sketch3.addConstraint(Sketcher.Constraint("Diameter", 8, Q("3.19984 mm")))
sketch3.addConstraint(Sketcher.Constraint("DistanceY", 20, 2, 13, 3, Q("19.05 mm")))
sketch3.addConstraint(Sketcher.Constraint("DistanceY", 22, 1, 22, 2, Q("19.0514 mm")))
sketch3.addConstraint(Sketcher.Constraint("DistanceY", 26, 1, 26, 2, Q("38.1031 mm")))
sketch3.addConstraint(Sketcher.Constraint("DistanceX", 9, 3, 5, 3, Q("103.935 mm")))
sketch3.addConstraint(Sketcher.Constraint("DistanceY", 8, 3, 10, 3, Q("62.151 mm")))
sketch3.addConstraint(Sketcher.Constraint("DistanceX", 11, 3, 9, 3, Q("104.933 mm")))
sketch3.addConstraint(Sketcher.Constraint("DistanceX", 15, 3, 7, 3, Q("48.867 mm")))
sketch3.addConstraint(Sketcher.Constraint("DistanceX", 17, 2, 7, 3, Q("4.001 mm")))
sketch3.addConstraint(Sketcher.Constraint("DistanceY", 17, 2, 7, 3, Q("3.998 mm")))
sketch3.addConstraint(Sketcher.Constraint("DistanceX", 17, 1, 17, 2, Q("304.80278 mm")))
sketch3.addConstraint(Sketcher.Constraint("DistanceX", 19, 2, 19, 1, Q("304.80141 mm")))
sketch3.addConstraint(Sketcher.Constraint("DistanceY", 18, 2, 18, 1, Q("114.30319 mm")))
sketch3.addConstraint(Sketcher.Constraint("DistanceX", 0, 2, 0, 1, Q("312.801915 mm")))
sketch3.addConstraint(Sketcher.Constraint("DistanceY", 2, 2, 2, 1, Q("122.302086 mm")))
sketch3.addConstraint(Sketcher.Constraint("DistanceY", -1, 1, 3, 3, Q("240.261711 mm")))
sketch3.addConstraint(Sketcher.Constraint("DistanceX", 12, 3, 11, 3, Q("104.93393 mm")))
sketch3.addConstraint(Sketcher.Constraint("DistanceX", -1, 1, 1, 3, Q("698.467198 mm")))
pad3 = body3.newObject("PartDesign::Pad", "Pad002")
pad3.Profile = sketch3
pad3.Length = 2.5

doc.recompute()
